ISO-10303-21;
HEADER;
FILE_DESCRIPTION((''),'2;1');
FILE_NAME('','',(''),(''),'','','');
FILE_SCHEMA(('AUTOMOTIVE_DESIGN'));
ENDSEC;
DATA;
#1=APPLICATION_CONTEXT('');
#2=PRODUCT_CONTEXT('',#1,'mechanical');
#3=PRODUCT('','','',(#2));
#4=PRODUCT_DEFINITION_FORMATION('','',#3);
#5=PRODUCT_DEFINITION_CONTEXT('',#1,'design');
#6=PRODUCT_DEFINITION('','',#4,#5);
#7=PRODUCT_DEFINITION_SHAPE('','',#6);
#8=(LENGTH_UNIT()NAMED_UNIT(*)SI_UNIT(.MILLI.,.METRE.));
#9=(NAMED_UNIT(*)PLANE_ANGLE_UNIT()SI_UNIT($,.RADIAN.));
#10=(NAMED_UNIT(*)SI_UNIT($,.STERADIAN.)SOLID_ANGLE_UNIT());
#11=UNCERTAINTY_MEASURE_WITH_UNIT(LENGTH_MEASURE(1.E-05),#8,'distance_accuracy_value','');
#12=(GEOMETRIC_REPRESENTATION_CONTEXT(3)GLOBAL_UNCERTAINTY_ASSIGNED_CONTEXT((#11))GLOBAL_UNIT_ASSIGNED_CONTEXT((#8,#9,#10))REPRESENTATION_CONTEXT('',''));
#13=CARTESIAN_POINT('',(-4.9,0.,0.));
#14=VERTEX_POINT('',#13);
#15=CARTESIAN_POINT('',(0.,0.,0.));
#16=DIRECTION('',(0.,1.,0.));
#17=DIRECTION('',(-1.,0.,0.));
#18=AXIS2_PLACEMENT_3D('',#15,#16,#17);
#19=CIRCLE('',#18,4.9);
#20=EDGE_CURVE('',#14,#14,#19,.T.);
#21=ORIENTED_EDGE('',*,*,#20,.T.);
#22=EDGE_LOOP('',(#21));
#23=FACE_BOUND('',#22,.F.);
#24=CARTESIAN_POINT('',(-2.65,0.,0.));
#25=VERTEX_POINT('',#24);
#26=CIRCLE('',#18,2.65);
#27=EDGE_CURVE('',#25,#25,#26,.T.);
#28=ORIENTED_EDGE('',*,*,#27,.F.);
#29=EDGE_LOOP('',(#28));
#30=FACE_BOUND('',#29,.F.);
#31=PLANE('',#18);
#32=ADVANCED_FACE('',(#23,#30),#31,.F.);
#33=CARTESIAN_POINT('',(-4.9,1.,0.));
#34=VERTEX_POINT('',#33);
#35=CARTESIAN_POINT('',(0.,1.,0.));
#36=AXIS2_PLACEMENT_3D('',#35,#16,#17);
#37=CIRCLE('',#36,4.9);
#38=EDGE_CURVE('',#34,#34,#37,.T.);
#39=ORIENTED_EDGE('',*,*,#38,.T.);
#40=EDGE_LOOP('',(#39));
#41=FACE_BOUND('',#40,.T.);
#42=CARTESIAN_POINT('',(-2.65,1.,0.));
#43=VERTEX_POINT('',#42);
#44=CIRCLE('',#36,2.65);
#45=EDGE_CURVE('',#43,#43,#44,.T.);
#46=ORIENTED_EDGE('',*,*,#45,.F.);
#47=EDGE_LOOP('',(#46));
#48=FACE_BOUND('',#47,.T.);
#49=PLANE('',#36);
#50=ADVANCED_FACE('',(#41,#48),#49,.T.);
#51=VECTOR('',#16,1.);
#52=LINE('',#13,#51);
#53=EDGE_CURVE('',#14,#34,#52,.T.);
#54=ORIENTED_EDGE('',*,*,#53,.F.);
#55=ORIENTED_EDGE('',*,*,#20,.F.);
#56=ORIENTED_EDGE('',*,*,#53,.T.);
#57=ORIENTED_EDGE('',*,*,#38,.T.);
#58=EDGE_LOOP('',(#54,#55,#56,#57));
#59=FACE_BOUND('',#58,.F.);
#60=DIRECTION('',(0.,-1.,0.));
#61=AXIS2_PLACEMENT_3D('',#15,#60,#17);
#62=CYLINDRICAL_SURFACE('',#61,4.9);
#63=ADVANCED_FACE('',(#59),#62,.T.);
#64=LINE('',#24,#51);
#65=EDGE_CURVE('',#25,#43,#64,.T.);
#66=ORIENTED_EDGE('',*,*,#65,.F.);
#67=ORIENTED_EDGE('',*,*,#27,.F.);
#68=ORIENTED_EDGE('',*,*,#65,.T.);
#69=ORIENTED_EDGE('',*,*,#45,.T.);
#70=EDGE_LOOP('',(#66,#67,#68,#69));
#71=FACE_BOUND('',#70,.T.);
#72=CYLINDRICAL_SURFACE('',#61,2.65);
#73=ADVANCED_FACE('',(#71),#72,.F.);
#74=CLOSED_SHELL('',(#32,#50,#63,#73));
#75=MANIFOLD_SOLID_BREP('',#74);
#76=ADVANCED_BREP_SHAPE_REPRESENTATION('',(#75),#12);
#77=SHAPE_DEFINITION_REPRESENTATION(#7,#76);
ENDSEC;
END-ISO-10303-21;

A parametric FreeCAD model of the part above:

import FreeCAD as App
import Part
import Sketcher

V = App.Vector

doc = App.newDocument("Part")
body = doc.addObject("PartDesign::Body", "Body")

# Sketch on XZ plane
sketch1 = body.newObject("Sketcher::SketchObject", "Sketch")
sketch1.AttachmentSupport = (doc.getObject("XZ_Plane"), [""])
sketch1.MapMode = "FlatFace"
sketch1.addGeometry([
    Part.Circle(V(0, 0, 0), V(0, 0, 1), 4.9),
    Part.Circle(V(0, 0, 0), V(0, 0, 1), 2.6),
], False)
sketch1.addConstraint([
    Sketcher.Constraint("Coincident", 0, 3, -1, 1),
    Sketcher.Constraint("Coincident", 1, 3, -1, 1),
    Sketcher.Constraint("Diameter", 0, 9.8),
    Sketcher.Constraint("Diameter", 1, 5.3),
])
pad1 = body.newObject("PartDesign::Pad", "Pad")
pad1.Profile = sketch1
pad1.Length = 1
pad1.Reversed = True

doc.recompute()
